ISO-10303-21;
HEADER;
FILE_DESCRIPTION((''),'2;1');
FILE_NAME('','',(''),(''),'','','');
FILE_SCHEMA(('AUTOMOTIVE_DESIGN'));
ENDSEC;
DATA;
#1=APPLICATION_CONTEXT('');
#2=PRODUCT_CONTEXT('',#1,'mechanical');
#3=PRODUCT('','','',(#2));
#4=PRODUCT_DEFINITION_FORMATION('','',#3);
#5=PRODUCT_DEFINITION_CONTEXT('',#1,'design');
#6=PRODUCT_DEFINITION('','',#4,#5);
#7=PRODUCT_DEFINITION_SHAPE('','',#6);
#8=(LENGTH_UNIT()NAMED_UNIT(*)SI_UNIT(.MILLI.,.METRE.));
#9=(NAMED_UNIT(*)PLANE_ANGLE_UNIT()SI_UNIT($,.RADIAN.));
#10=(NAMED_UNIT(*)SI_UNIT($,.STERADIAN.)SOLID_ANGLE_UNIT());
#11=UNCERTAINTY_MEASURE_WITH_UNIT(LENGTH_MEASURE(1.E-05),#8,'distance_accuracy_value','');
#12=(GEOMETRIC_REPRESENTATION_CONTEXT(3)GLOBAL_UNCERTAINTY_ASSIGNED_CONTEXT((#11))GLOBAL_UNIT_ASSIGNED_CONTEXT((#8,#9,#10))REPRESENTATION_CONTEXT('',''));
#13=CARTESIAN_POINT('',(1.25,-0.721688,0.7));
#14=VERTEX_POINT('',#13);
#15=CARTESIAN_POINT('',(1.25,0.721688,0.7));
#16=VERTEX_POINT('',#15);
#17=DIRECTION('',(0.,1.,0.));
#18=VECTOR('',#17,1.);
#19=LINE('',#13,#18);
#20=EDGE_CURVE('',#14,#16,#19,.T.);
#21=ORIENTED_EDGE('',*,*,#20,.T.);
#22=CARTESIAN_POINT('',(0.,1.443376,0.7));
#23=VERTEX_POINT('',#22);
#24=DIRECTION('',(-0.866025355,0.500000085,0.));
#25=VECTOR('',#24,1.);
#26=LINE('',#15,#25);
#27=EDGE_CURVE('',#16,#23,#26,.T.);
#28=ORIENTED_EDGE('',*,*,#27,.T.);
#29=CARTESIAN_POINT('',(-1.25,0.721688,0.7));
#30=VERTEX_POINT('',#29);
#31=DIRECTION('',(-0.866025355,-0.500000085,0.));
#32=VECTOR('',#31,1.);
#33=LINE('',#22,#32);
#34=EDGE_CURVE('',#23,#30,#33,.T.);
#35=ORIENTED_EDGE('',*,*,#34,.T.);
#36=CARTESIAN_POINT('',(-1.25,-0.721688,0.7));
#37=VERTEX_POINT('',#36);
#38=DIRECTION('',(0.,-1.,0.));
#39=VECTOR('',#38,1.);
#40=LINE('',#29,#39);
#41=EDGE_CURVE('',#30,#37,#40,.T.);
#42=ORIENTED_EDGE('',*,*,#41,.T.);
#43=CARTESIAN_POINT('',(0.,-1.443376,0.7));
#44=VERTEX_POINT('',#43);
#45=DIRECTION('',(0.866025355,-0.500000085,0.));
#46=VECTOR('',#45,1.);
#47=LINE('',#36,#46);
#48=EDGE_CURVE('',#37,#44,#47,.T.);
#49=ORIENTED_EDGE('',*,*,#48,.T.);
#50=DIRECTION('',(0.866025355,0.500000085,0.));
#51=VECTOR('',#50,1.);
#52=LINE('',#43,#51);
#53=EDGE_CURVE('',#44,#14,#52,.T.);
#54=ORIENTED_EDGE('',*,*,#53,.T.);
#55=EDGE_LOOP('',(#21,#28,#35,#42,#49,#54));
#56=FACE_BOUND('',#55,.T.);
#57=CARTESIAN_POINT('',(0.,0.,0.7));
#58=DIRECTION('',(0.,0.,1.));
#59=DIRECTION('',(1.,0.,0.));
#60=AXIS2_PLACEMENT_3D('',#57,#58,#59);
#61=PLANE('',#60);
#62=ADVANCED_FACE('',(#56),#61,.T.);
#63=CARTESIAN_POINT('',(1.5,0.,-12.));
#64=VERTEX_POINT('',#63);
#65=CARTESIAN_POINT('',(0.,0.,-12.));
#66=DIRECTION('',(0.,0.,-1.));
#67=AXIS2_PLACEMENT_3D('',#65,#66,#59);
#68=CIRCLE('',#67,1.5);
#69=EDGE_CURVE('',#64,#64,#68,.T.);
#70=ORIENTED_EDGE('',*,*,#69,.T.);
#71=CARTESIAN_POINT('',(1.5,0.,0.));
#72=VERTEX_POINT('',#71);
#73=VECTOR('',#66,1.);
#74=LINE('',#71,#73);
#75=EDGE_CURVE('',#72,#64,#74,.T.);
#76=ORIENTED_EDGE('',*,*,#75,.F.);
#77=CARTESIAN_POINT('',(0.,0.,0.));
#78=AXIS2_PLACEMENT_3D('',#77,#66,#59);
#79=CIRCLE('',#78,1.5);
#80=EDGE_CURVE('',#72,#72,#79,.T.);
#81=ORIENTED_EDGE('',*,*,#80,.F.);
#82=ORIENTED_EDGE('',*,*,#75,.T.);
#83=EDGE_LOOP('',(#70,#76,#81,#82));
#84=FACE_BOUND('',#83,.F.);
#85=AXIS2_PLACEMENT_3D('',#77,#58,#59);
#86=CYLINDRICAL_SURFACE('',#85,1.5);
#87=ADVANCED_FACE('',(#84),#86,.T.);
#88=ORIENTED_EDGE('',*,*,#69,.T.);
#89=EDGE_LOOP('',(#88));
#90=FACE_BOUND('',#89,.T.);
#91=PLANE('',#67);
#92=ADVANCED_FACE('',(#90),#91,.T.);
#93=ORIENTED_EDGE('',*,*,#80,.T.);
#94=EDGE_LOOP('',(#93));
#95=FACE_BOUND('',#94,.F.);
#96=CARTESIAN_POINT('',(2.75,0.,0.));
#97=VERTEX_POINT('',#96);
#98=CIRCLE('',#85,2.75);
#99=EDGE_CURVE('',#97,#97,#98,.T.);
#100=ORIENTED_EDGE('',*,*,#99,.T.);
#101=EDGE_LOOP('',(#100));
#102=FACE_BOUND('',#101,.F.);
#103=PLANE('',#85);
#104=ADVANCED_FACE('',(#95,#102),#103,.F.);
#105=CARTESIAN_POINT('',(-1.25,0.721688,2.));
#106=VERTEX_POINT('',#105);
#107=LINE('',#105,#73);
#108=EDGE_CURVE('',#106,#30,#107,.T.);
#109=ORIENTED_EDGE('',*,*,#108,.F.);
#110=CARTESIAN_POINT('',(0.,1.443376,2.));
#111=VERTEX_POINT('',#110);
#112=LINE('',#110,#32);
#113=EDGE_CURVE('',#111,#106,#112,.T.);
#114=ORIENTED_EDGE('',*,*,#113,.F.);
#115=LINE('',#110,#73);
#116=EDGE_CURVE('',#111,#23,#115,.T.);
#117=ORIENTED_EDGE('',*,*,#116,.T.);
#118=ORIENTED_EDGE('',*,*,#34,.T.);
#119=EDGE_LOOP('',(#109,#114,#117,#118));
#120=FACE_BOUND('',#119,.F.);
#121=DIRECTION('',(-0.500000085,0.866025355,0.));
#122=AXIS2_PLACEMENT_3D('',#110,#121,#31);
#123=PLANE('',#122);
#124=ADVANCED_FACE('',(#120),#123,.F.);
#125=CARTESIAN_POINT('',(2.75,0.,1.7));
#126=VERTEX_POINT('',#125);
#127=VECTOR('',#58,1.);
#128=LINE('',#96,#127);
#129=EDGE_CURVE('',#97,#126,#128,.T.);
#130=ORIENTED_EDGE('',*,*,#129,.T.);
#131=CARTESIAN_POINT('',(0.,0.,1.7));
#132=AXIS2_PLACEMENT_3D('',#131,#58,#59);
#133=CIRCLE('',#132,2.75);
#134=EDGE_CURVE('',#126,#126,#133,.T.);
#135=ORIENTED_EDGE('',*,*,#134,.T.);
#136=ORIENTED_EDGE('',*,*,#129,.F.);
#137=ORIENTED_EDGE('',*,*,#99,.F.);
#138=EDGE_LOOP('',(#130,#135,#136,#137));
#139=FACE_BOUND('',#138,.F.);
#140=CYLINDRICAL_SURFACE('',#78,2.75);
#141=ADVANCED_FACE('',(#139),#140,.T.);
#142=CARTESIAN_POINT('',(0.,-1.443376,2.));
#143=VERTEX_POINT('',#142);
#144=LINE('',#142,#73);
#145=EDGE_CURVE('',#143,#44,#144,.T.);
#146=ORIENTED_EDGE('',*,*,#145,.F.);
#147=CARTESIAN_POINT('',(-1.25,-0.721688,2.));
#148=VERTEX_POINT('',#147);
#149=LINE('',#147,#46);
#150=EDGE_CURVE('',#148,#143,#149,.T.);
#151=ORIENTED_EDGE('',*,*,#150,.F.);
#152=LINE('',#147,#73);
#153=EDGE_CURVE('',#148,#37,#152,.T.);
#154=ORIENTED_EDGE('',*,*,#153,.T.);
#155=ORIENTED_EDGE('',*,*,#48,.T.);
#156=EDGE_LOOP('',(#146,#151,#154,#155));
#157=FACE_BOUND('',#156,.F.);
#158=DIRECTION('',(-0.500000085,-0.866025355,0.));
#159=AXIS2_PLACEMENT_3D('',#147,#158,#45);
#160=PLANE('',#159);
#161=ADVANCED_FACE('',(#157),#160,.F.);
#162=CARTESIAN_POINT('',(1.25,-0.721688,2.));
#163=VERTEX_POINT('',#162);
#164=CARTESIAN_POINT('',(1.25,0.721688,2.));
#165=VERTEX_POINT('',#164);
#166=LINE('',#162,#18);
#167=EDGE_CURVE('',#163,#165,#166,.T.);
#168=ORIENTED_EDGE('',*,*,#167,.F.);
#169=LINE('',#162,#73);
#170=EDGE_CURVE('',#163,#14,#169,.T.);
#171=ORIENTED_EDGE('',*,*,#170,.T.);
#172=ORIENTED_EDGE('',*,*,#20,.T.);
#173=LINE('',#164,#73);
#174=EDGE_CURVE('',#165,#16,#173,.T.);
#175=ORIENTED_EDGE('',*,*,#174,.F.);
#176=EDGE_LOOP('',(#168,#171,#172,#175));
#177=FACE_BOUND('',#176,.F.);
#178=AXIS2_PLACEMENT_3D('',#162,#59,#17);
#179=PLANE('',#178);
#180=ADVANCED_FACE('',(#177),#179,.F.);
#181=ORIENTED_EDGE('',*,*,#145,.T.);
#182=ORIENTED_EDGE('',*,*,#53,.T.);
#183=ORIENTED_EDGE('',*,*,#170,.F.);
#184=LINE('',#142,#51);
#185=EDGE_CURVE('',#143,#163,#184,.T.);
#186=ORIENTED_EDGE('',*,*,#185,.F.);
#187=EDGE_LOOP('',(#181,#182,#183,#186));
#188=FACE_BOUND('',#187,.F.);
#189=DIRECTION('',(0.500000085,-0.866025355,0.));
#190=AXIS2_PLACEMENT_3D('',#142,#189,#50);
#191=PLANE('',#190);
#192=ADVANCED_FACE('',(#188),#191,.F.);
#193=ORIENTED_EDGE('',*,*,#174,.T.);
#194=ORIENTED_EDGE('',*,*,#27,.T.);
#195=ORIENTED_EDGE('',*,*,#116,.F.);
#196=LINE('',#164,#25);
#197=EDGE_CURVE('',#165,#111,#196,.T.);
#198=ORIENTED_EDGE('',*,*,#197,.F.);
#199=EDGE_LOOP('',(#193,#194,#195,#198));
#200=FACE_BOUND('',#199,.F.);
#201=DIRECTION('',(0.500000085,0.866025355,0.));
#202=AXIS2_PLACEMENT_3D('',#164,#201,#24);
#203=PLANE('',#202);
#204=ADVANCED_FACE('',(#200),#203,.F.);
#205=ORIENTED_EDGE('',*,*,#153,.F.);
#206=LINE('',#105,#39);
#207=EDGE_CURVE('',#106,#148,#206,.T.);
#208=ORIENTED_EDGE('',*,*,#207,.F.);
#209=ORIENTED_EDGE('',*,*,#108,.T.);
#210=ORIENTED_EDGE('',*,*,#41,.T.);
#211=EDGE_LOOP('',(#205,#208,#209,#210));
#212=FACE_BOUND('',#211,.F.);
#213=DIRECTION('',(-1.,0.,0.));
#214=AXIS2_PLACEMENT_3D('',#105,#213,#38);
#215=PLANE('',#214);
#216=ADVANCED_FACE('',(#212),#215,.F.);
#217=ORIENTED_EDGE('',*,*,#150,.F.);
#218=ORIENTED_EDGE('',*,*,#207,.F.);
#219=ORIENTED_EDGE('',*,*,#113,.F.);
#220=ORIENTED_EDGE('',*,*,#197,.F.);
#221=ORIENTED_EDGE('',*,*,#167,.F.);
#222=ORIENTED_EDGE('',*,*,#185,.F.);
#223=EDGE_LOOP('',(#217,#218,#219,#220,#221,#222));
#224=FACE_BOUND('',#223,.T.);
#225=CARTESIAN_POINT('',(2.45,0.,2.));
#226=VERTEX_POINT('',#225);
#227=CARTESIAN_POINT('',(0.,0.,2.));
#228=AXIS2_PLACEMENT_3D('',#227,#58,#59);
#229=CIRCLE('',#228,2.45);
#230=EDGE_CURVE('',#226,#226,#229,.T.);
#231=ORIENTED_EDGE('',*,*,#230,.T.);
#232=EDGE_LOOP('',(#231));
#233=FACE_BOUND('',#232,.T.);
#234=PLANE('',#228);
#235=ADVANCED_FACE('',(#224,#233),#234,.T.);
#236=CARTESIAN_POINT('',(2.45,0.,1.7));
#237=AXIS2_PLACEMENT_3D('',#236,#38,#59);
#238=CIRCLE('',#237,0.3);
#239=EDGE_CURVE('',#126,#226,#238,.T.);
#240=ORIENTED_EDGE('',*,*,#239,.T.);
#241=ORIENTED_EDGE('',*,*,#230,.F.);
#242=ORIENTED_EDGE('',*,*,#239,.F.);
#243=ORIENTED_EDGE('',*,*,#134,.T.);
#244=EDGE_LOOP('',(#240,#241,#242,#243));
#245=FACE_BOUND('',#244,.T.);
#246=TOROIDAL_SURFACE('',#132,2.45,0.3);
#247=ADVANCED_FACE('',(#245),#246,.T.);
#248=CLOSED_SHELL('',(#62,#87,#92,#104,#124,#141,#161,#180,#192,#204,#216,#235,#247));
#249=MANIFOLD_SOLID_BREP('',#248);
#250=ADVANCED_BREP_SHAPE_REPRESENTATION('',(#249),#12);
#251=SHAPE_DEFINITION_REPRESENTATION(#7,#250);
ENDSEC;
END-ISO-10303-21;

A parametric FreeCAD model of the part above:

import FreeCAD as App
import Part
import Sketcher

V = App.Vector
Q = App.Units.Quantity


def edges_at(feature, points):
    """Names of the edges that pass closest to the given points."""
    edges = feature.Shape.Edges
    near = lambda p: min(range(len(edges)), key=lambda i: edges[i].distToShape(Part.Vertex(*p))[0])
    return sorted({f"Edge{near(p) + 1}" for p in points})


def add_polygon(sketch, points):
    """Adds a closed chain of lines whose ends are joined by coincident constraints."""
    first, n = sketch.GeometryCount, len(points)
    for a, b in zip(points, points[1:] + points[:1]):
        sketch.addGeometry(Part.LineSegment(App.Vector(*a, 0), App.Vector(*b, 0)), False)
    for i in range(n):
        sketch.addConstraint(Sketcher.Constraint("Coincident", first + i, 2, first + (i + 1) % n, 1))

doc = App.newDocument("Part")
params = doc.addObject("Spreadsheet::Sheet", "Params")
for row, (alias, value) in enumerate([
    ("sketch1_diameter", "5.5 mm"),
    ("pad1_length", "2 mm"),
    ("pocket1_length", "1.3 mm"),
    ("sketch3_diameter", "3 mm"),
    ("pad2_length", "12 mm"),
    ("fillet_radius", "0.3 mm"),
], start=1):
    params.set(f"A{row}", alias)
    params.set(f"B{row}", "=" + value)
    params.setAlias(f"B{row}", alias)

body = doc.addObject("PartDesign::Body", "Body")

sketch1 = body.newObject("Sketcher::SketchObject", "Sketch")
sketch1.AttachmentSupport = (doc.getObject("XY_Plane"), [""])
sketch1.MapMode = "FlatFace"
sketch1.addGeometry(Part.Circle(V(0, 0, 0), V(0, 0, 1), 2.8), False)
sketch1.addConstraint([
    Sketcher.Constraint("Coincident", 0, 3, -1, 1),
    Sketcher.Constraint("Diameter", 0, Q("5.5 mm")),
])
sketch1.setExpression("Constraints[1]", "Params.sketch1_diameter")
pad1 = body.newObject("PartDesign::Pad", "Pad")
pad1.Profile = sketch1
pad1.setExpression("Length", "Params.pad1_length")

sketch2 = body.newObject("Sketcher::SketchObject", "Sketch001")
sketch2.AttachmentSupport = (doc.getObject("XY_Plane"), [""])
sketch2.MapMode = "FlatFace"
sketch2.AttachmentOffset = App.Placement(V(0, 0, 2), App.Rotation())
add_polygon(sketch2, [(1.2, -0.7), (1.2, 0.7), (0, 1.4), (-1.2, 0.7), (-1.2, -0.7), (0, -1.4)])
sketch2.addConstraint([
    Sketcher.Constraint("Vertical", 0),
    Sketcher.Constraint("Vertical", 3),
    Sketcher.Constraint("Symmetric", 0, 2, 3, 2, -1, 1),
    Sketcher.Constraint("Symmetric", 1, 2, 4, 2, -1, 1),
    Sketcher.Constraint("PointOnObject", 1, 2, -2),
    Sketcher.Constraint("Parallel", 2, 5),
    Sketcher.Constraint("Horizontal", 0, 2, 2, 2),
    Sketcher.Constraint("Angle", 1, Q("149.999994 deg")),
    Sketcher.Constraint("DistanceX", 2, 2, 0, 2, Q("2.5 mm")),
    Sketcher.Constraint("DistanceY", 0, 1, 0, 2, Q("1.443376 mm")),
])
pocket1 = body.newObject("PartDesign::Pocket", "Pocket")
pocket1.Profile = sketch2
pocket1.setExpression("Length", "Params.pocket1_length")

sketch3 = body.newObject("Sketcher::SketchObject", "Sketch002")
sketch3.AttachmentSupport = (doc.getObject("XY_Plane"), [""])
sketch3.MapMode = "FlatFace"
sketch3.addGeometry(Part.Circle(V(0, 0, 0), V(0, 0, 1), 1.5), False)
sketch3.addConstraint([
    Sketcher.Constraint("Coincident", 0, 3, -1, 1),
    Sketcher.Constraint("Diameter", 0, Q("3 mm")),
])
sketch3.setExpression("Constraints[1]", "Params.sketch3_diameter")
pad2 = body.newObject("PartDesign::Pad", "Pad001")
pad2.Profile = sketch3
pad2.setExpression("Length", "Params.pad2_length")
pad2.Reversed = True
doc.recompute()

fillet = body.newObject("PartDesign::Fillet", "Fillet")
fillet.Base = (pad2, edges_at(pad2, [(-2.75, 0, 2)]))
fillet.setExpression("Radius", "Params.fillet_radius")

doc.recompute()
